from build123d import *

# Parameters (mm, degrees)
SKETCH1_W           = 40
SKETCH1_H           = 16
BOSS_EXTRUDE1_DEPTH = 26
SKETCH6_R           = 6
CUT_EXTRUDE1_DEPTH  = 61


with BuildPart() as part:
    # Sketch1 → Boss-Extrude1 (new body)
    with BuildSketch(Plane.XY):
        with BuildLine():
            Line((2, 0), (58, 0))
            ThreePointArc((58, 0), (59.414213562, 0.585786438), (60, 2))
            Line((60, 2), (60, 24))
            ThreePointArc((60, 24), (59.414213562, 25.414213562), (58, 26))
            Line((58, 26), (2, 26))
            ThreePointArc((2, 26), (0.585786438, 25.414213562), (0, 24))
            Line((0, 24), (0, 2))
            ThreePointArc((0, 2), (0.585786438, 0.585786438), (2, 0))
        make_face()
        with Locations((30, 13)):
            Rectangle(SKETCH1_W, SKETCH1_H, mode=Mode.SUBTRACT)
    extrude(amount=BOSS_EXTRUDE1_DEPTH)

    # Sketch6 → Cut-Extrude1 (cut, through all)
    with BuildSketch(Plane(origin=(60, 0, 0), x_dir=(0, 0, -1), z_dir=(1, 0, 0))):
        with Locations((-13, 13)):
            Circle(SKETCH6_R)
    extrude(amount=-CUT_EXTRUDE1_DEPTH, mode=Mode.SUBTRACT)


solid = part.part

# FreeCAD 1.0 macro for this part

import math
import FreeCAD as App
import Part
import Sketcher
from FreeCAD import Vector
Q = App.Units.Quantity

doc = App.newDocument("Part")
body = doc.addObject("PartDesign::Body", "Body")

sketch1 = doc.addObject("Sketcher::SketchObject", "Sketch")
body.addObject(sketch1)
sketch1.AttachmentSupport = (doc.XY_Plane, [""])
sketch1.MapMode = "FlatFace"
sketch1.addGeometry(Part.LineSegment(Vector(2, 0, 0), Vector(58, 0, 0)), False)
sketch1.addGeometry(Part.ArcOfCircle(Part.Circle(Vector(58, 2, 0), Vector(0, 0, 1), 2), math.radians(-90), math.radians(0)), False)
sketch1.addGeometry(Part.LineSegment(Vector(60, 2, 0), Vector(60, 24, 0)), False)
sketch1.addGeometry(Part.ArcOfCircle(Part.Circle(Vector(58, 24, 0), Vector(0, 0, 1), 2), math.radians(0), math.radians(90)), False)
sketch1.addGeometry(Part.LineSegment(Vector(58, 26, 0), Vector(2, 26, 0)), False)
sketch1.addGeometry(Part.ArcOfCircle(Part.Circle(Vector(2, 24, 0), Vector(0, 0, 1), 2), math.radians(90), math.radians(180)), False)
sketch1.addGeometry(Part.LineSegment(Vector(0, 24, 0), Vector(0, 2, 0)), False)
sketch1.addGeometry(Part.ArcOfCircle(Part.Circle(Vector(2, 2, 0), Vector(0, 0, 1), 2), math.radians(-180), math.radians(-90)), False)
sketch1.addGeometry(Part.LineSegment(Vector(50, 5, 0), Vector(10, 5, 0)), False)
sketch1.addGeometry(Part.LineSegment(Vector(10, 5, 0), Vector(10, 21, 0)), False)
sketch1.addGeometry(Part.LineSegment(Vector(10, 21, 0), Vector(50, 21, 0)), False)
sketch1.addGeometry(Part.LineSegment(Vector(50, 21, 0), Vector(50, 5, 0)), False)
sketch1.addConstraint(Sketcher.Constraint("Tangent", 0, 2, 1, 1))
sketch1.addConstraint(Sketcher.Constraint("Tangent", 1, 2, 2, 1))
sketch1.addConstraint(Sketcher.Constraint("Tangent", 2, 2, 3, 1))
sketch1.addConstraint(Sketcher.Constraint("Tangent", 3, 2, 4, 1))
sketch1.addConstraint(Sketcher.Constraint("Tangent", 4, 2, 5, 1))
sketch1.addConstraint(Sketcher.Constraint("Tangent", 5, 2, 6, 1))
sketch1.addConstraint(Sketcher.Constraint("Tangent", 6, 2, 7, 1))
sketch1.addConstraint(Sketcher.Constraint("Tangent", 7, 2, 0, 1))
sketch1.addConstraint(Sketcher.Constraint("Coincident", 8, 2, 9, 1))
sketch1.addConstraint(Sketcher.Constraint("Coincident", 9, 2, 10, 1))
sketch1.addConstraint(Sketcher.Constraint("Coincident", 10, 2, 11, 1))
sketch1.addConstraint(Sketcher.Constraint("Coincident", 11, 2, 8, 1))
sketch1.addConstraint(Sketcher.Constraint("Horizontal", 0))
sketch1.addConstraint(Sketcher.Constraint("Vertical", 2))
sketch1.addConstraint(Sketcher.Constraint("Horizontal", 4))
sketch1.addConstraint(Sketcher.Constraint("Vertical", 6))
sketch1.addConstraint(Sketcher.Constraint("Horizontal", 8))
sketch1.addConstraint(Sketcher.Constraint("Vertical", 9))
sketch1.addConstraint(Sketcher.Constraint("Horizontal", 10))
sketch1.addConstraint(Sketcher.Constraint("Vertical", 11))
sketch1.addConstraint(Sketcher.Constraint("Equal", 1, 3))
sketch1.addConstraint(Sketcher.Constraint("Equal", 3, 5))
sketch1.addConstraint(Sketcher.Constraint("Equal", 5, 7))
sketch1.addConstraint(Sketcher.Constraint("PointOnObject", 0, 2, -1))
sketch1.addConstraint(Sketcher.Constraint("PointOnObject", 5, 2, -2))
sketch1.addConstraint(Sketcher.Constraint("Radius", 1, Q("2 mm")))
sketch1.addConstraint(Sketcher.Constraint("DistanceX", 0, 1, 0, 2, Q("56 mm")))
sketch1.addConstraint(Sketcher.Constraint("DistanceX", 8, 2, 8, 1, Q("40 mm")))
sketch1.addConstraint(Sketcher.Constraint("DistanceY", 2, 1, 2, 2, Q("22 mm")))
sketch1.addConstraint(Sketcher.Constraint("DistanceY", 9, 1, 9, 2, Q("16 mm")))
sketch1.addConstraint(Sketcher.Constraint("DistanceX", -1, 1, 8, 2, Q("10 mm")))
sketch1.addConstraint(Sketcher.Constraint("DistanceY", -1, 1, 8, 2, Q("5 mm")))
pad1 = doc.addObject("PartDesign::Pad", "Pad")
body.addObject(pad1)
pad1.Profile = sketch1
pad1.Length = 26

sketch2 = doc.addObject("Sketcher::SketchObject", "Sketch001")
body.addObject(sketch2)
sketch2.AttachmentSupport = (doc.YZ_Plane, [""])
sketch2.MapMode = "FlatFace"
sketch2.AttachmentOffset = App.Placement(Vector(0, 0, 60), App.Rotation())
sketch2.addGeometry(Part.Circle(Vector(13, 13, 0), Vector(0, 0, 1), 6), False)
sketch2.addConstraint(Sketcher.Constraint("Diameter", 0, Q("12 mm")))
sketch2.addConstraint(Sketcher.Constraint("DistanceX", -1, 1, 0, 3, Q("13 mm")))
sketch2.addConstraint(Sketcher.Constraint("DistanceY", -1, 1, 0, 3, Q("13 mm")))
pocket1 = doc.addObject("PartDesign::Pocket", "Pocket")
body.addObject(pocket1)
pocket1.Profile = sketch2
pocket1.Type = "ThroughAll"

doc.recompute()
